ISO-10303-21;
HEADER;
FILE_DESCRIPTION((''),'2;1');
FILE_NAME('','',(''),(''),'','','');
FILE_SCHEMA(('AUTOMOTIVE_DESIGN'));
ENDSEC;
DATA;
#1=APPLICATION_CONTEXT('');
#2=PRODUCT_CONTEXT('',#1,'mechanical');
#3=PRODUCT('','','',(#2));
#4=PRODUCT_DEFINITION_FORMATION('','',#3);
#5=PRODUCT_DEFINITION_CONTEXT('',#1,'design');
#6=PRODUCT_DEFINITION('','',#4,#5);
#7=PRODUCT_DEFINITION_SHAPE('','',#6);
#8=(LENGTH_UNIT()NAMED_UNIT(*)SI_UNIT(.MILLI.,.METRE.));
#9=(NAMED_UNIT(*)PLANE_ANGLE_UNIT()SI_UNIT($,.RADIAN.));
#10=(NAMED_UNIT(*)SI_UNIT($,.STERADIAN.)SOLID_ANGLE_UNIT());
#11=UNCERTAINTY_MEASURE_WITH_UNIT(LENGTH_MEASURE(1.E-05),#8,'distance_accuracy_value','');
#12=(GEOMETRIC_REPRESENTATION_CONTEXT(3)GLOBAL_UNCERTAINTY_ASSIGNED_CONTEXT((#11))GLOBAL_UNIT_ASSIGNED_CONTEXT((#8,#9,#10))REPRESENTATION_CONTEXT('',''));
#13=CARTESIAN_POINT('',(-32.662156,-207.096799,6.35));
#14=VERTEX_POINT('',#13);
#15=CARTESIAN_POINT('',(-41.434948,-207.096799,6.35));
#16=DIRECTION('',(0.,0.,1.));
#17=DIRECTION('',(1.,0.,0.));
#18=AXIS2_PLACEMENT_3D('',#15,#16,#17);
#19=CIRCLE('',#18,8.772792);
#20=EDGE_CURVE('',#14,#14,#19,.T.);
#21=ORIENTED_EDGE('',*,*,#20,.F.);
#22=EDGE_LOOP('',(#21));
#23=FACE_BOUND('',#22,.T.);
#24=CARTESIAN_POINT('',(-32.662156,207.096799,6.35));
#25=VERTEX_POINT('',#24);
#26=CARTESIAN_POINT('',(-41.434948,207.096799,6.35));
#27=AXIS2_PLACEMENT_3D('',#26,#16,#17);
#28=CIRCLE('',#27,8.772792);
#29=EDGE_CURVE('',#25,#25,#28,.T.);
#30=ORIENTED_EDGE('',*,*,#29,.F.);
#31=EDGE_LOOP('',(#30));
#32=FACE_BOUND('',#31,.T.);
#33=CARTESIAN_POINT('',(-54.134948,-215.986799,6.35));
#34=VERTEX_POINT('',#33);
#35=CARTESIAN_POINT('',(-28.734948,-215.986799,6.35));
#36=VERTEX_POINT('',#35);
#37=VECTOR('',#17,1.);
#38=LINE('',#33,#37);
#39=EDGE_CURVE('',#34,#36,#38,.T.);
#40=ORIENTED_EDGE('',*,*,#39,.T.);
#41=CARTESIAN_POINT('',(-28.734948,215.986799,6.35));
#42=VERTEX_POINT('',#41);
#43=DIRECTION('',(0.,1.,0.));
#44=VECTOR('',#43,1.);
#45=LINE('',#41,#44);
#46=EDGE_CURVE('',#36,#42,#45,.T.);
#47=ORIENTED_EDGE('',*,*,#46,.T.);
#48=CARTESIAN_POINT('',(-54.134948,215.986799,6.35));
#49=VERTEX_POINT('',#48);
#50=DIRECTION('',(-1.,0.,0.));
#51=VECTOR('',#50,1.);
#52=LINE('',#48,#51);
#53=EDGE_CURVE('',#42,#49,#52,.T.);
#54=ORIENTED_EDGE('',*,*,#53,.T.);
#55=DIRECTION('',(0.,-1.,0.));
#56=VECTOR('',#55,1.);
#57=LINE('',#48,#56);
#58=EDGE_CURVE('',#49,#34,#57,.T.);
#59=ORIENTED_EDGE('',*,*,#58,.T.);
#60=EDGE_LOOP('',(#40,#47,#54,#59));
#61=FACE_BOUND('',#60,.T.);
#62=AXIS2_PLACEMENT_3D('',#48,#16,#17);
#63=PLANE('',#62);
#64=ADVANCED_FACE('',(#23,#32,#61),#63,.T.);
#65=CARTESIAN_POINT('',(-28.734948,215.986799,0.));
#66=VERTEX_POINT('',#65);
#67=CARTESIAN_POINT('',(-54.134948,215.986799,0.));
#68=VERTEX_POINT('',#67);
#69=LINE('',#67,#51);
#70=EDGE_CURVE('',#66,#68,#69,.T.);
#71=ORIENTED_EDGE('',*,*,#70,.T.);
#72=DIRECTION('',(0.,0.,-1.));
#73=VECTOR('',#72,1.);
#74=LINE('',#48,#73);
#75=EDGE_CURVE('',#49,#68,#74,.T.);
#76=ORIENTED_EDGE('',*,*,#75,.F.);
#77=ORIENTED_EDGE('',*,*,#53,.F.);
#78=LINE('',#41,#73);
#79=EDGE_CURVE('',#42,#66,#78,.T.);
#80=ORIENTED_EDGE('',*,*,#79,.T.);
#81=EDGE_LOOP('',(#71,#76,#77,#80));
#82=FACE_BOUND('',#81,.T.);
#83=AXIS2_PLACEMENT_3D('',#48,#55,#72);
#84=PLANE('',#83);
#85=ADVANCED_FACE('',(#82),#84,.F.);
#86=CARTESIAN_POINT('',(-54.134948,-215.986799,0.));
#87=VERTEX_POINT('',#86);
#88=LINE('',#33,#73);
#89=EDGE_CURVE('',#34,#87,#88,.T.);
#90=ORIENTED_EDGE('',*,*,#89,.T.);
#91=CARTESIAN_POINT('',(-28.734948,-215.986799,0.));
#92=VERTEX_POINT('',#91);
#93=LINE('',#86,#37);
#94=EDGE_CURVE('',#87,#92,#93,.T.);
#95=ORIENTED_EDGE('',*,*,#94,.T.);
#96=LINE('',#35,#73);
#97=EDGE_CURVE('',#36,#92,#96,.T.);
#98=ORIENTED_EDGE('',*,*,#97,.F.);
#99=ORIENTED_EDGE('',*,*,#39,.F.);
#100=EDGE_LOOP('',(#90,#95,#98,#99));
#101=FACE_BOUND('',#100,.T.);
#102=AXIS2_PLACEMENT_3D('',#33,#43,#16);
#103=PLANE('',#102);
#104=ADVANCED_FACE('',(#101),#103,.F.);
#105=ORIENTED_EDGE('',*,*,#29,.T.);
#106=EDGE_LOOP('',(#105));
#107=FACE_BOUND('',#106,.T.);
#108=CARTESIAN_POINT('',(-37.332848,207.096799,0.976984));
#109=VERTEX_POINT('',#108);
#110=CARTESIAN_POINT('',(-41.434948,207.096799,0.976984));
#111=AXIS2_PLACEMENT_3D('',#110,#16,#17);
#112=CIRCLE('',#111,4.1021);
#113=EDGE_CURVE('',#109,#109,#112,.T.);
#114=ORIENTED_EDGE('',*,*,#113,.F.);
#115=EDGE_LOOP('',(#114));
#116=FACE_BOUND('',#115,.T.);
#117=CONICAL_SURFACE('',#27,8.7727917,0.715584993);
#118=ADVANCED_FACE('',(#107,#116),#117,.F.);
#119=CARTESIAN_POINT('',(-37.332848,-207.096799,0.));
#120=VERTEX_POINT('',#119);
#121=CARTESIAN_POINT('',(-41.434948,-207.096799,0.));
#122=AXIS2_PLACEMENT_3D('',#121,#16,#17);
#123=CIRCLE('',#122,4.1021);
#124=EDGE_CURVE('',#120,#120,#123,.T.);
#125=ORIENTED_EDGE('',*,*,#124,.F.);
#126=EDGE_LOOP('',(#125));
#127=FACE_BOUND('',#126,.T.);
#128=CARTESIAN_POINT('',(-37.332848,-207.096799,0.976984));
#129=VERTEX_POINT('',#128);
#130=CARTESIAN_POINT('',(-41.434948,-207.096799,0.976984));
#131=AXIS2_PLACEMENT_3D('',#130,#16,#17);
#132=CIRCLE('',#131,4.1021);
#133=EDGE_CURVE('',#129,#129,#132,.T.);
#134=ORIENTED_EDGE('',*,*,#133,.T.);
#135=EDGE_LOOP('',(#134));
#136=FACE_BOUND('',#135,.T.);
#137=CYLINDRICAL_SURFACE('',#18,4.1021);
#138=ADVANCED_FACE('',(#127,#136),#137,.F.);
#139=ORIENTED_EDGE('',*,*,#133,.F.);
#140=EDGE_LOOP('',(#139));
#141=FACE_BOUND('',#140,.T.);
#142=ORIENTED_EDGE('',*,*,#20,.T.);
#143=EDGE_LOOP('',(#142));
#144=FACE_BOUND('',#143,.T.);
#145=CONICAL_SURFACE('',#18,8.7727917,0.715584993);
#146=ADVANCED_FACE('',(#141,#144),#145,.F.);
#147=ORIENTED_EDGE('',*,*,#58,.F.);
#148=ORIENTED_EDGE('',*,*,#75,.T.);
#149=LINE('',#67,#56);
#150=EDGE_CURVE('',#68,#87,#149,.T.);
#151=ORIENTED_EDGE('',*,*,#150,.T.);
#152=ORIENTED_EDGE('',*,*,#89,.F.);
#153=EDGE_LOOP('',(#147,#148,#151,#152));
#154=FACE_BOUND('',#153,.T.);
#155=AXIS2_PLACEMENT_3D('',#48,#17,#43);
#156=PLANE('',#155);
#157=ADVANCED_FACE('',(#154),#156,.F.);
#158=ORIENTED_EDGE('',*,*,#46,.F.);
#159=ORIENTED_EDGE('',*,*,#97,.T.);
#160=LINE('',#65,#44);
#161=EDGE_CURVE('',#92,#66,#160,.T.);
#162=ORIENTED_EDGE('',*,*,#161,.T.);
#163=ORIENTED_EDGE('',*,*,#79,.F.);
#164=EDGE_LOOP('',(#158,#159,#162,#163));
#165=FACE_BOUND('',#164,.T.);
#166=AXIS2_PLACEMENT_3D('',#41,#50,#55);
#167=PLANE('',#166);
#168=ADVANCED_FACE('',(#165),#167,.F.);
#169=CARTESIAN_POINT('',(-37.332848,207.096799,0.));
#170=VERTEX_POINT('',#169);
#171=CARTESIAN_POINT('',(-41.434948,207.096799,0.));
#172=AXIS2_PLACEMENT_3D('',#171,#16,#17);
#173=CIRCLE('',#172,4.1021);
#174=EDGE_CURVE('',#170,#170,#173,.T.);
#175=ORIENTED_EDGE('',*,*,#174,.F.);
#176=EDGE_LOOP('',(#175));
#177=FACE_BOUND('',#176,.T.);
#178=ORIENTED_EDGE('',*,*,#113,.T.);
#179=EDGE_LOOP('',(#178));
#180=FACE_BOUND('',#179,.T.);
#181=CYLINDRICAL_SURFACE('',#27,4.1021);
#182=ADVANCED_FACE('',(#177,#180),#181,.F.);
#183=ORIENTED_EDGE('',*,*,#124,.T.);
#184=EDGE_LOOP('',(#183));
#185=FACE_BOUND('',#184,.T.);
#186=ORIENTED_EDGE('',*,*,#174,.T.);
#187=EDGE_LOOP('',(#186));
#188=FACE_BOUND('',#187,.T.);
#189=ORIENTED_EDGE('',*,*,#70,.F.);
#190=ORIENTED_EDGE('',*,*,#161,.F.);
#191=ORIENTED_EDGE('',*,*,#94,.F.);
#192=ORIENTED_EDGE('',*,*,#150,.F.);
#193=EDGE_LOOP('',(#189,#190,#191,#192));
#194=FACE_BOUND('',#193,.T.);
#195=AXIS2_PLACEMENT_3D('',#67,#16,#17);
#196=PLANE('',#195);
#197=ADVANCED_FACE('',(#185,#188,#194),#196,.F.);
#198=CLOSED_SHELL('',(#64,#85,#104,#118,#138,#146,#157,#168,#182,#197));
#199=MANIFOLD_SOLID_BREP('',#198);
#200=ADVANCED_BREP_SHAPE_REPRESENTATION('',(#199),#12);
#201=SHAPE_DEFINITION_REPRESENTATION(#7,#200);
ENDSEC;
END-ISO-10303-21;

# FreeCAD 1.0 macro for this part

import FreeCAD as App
import Part
import Sketcher
from FreeCAD import Vector
Q = App.Units.Quantity

doc = App.newDocument("Part")
params = doc.addObject("Spreadsheet::Sheet", "Params")
for row, (alias, value) in enumerate([
    ("sketch1_width", "1 in"),
    ("pad1_length", "0.25 in"),
    ("sketch2_height", "0.25 in"),
    ("groove_angle", "360 deg"),
    ("linearpattern_pitch", "414.193598 mm"),
], start=1):
    params.set(f"A{row}", alias)
    params.set(f"B{row}", "=" + value)
    params.setAlias(f"B{row}", alias)

body = doc.addObject("PartDesign::Body", "Body")

# Sketch on XY plane
sketch1 = doc.addObject("Sketcher::SketchObject", "Sketch")
body.addObject(sketch1)
sketch1.AttachmentSupport = (doc.XY_Plane, [""])
sketch1.MapMode = "FlatFace"
sketch1.addGeometry(Part.LineSegment(Vector(-54.134948, 215.986799, 0), Vector(-54.134948, -215.986799, 0)), False)
sketch1.addGeometry(Part.LineSegment(Vector(-54.134948, -215.986799, 0), Vector(-28.734948, -215.986799, 0)), False)
sketch1.addGeometry(Part.LineSegment(Vector(-28.734948, -215.986799, 0), Vector(-28.734948, 215.986799, 0)), False)
sketch1.addGeometry(Part.LineSegment(Vector(-28.734948, 215.986799, 0), Vector(-54.134948, 215.986799, 0)), False)
sketch1.addConstraint(Sketcher.Constraint("Coincident", 0, 2, 1, 1))
sketch1.addConstraint(Sketcher.Constraint("Coincident", 1, 2, 2, 1))
sketch1.addConstraint(Sketcher.Constraint("Coincident", 2, 2, 3, 1))
sketch1.addConstraint(Sketcher.Constraint("Coincident", 3, 2, 0, 1))
sketch1.addConstraint(Sketcher.Constraint("Vertical", 0))
sketch1.addConstraint(Sketcher.Constraint("Horizontal", 1))
sketch1.addConstraint(Sketcher.Constraint("Vertical", 2))
sketch1.addConstraint(Sketcher.Constraint("Horizontal", 3))
sketch1.addConstraint(Sketcher.Constraint("DistanceX", 1, 1, 1, 2, Q("1 in")))
sketch1.addConstraint(Sketcher.Constraint("DistanceY", 0, 2, -1, 1, 215.986799))
sketch1.addConstraint(Sketcher.Constraint("DistanceY", -1, 1, 2, 2, 215.986799))
sketch1.addConstraint(Sketcher.Constraint("DistanceX", 0, 2, -1, 1, 54.134948))
sketch1.setExpression("Constraints[8]", "Params.sketch1_width")
pad1 = doc.addObject("PartDesign::Pad", "Pad")
body.addObject(pad1)
pad1.Profile = sketch1
pad1.setExpression("Length", "Params.pad1_length")

# Sketch on YZ plane
sketch2 = doc.addObject("Sketcher::SketchObject", "Sketch001")
body.addObject(sketch2)
sketch2.AttachmentSupport = (doc.YZ_Plane, [""])
sketch2.MapMode = "FlatFace"
sketch2.AttachmentOffset = App.Placement(Vector(0, 0, -41.434948), App.Rotation())
sketch2.addGeometry(Part.LineSegment(Vector(207.096799, 0, 0), Vector(207.096799, 6.35, 0)), False)
sketch2.addGeometry(Part.LineSegment(Vector(207.096799, 6.35, 0), Vector(198.324007, 6.35, 0)), False)
sketch2.addGeometry(Part.LineSegment(Vector(198.324007, 6.35, 0), Vector(202.994699, 0.976984, 0)), False)
sketch2.addGeometry(Part.LineSegment(Vector(202.994699, 0.976984, 0), Vector(202.994699, 0, 0)), False)
sketch2.addGeometry(Part.LineSegment(Vector(202.994699, 0, 0), Vector(207.096799, 0, 0)), False)
sketch2.addGeometry(Part.LineSegment(Vector(207.096799, 6.35, 0), Vector(207.096799, 0, 0)), True)  # axis
sketch2.addConstraint(Sketcher.Constraint("Coincident", 0, 2, 1, 1))
sketch2.addConstraint(Sketcher.Constraint("Coincident", 1, 2, 2, 1))
sketch2.addConstraint(Sketcher.Constraint("Coincident", 2, 2, 3, 1))
sketch2.addConstraint(Sketcher.Constraint("Coincident", 3, 2, 4, 1))
sketch2.addConstraint(Sketcher.Constraint("Coincident", 4, 2, 0, 1))
sketch2.addConstraint(Sketcher.Constraint("Vertical", 0))
sketch2.addConstraint(Sketcher.Constraint("Horizontal", 1))
sketch2.addConstraint(Sketcher.Constraint("Vertical", 3))
sketch2.addConstraint(Sketcher.Constraint("Horizontal", 4))
sketch2.addConstraint(Sketcher.Constraint("Vertical", 5))
sketch2.addConstraint(Sketcher.Constraint("Coincident", 5, 1, 0, 2))
sketch2.addConstraint(Sketcher.Constraint("PointOnObject", 3, 2, -1))
sketch2.addConstraint(Sketcher.Constraint("PointOnObject", 5, 2, -1))
sketch2.addConstraint(Sketcher.Constraint("Angle", 2, Q("-49 deg")))
sketch2.addConstraint(Sketcher.Constraint("DistanceY", 0, 1, 0, 2, Q("0.25 in")))
sketch2.addConstraint(Sketcher.Constraint("DistanceX", 4, 1, 4, 2, Q("0.1615 in")))
sketch2.addConstraint(Sketcher.Constraint("DistanceX", 1, 2, 1, 1, 8.772792))
sketch2.addConstraint(Sketcher.Constraint("DistanceX", -1, 1, 0, 2, 207.096799))
sketch2.setExpression("Constraints[14]", "Params.sketch2_height")
groove = doc.addObject("PartDesign::Groove", "Groove")
body.addObject(groove)
groove.Profile = sketch2
groove.ReferenceAxis = (sketch2, ["Axis0"])
groove.setExpression("Angle", "Params.groove_angle")
doc.recompute()

linearpattern = doc.addObject("PartDesign::LinearPattern", "LinearPattern")
body.addObject(linearpattern)
linearpattern.Originals = [groove]
linearpattern.Direction = (doc.Y_Axis, [""])
linearpattern.Mode = "offset"
linearpattern.setExpression("Offset", "Params.linearpattern_pitch")
linearpattern.Occurrences = 2
linearpattern.Reversed = True
body.Tip = linearpattern

doc.recompute()
